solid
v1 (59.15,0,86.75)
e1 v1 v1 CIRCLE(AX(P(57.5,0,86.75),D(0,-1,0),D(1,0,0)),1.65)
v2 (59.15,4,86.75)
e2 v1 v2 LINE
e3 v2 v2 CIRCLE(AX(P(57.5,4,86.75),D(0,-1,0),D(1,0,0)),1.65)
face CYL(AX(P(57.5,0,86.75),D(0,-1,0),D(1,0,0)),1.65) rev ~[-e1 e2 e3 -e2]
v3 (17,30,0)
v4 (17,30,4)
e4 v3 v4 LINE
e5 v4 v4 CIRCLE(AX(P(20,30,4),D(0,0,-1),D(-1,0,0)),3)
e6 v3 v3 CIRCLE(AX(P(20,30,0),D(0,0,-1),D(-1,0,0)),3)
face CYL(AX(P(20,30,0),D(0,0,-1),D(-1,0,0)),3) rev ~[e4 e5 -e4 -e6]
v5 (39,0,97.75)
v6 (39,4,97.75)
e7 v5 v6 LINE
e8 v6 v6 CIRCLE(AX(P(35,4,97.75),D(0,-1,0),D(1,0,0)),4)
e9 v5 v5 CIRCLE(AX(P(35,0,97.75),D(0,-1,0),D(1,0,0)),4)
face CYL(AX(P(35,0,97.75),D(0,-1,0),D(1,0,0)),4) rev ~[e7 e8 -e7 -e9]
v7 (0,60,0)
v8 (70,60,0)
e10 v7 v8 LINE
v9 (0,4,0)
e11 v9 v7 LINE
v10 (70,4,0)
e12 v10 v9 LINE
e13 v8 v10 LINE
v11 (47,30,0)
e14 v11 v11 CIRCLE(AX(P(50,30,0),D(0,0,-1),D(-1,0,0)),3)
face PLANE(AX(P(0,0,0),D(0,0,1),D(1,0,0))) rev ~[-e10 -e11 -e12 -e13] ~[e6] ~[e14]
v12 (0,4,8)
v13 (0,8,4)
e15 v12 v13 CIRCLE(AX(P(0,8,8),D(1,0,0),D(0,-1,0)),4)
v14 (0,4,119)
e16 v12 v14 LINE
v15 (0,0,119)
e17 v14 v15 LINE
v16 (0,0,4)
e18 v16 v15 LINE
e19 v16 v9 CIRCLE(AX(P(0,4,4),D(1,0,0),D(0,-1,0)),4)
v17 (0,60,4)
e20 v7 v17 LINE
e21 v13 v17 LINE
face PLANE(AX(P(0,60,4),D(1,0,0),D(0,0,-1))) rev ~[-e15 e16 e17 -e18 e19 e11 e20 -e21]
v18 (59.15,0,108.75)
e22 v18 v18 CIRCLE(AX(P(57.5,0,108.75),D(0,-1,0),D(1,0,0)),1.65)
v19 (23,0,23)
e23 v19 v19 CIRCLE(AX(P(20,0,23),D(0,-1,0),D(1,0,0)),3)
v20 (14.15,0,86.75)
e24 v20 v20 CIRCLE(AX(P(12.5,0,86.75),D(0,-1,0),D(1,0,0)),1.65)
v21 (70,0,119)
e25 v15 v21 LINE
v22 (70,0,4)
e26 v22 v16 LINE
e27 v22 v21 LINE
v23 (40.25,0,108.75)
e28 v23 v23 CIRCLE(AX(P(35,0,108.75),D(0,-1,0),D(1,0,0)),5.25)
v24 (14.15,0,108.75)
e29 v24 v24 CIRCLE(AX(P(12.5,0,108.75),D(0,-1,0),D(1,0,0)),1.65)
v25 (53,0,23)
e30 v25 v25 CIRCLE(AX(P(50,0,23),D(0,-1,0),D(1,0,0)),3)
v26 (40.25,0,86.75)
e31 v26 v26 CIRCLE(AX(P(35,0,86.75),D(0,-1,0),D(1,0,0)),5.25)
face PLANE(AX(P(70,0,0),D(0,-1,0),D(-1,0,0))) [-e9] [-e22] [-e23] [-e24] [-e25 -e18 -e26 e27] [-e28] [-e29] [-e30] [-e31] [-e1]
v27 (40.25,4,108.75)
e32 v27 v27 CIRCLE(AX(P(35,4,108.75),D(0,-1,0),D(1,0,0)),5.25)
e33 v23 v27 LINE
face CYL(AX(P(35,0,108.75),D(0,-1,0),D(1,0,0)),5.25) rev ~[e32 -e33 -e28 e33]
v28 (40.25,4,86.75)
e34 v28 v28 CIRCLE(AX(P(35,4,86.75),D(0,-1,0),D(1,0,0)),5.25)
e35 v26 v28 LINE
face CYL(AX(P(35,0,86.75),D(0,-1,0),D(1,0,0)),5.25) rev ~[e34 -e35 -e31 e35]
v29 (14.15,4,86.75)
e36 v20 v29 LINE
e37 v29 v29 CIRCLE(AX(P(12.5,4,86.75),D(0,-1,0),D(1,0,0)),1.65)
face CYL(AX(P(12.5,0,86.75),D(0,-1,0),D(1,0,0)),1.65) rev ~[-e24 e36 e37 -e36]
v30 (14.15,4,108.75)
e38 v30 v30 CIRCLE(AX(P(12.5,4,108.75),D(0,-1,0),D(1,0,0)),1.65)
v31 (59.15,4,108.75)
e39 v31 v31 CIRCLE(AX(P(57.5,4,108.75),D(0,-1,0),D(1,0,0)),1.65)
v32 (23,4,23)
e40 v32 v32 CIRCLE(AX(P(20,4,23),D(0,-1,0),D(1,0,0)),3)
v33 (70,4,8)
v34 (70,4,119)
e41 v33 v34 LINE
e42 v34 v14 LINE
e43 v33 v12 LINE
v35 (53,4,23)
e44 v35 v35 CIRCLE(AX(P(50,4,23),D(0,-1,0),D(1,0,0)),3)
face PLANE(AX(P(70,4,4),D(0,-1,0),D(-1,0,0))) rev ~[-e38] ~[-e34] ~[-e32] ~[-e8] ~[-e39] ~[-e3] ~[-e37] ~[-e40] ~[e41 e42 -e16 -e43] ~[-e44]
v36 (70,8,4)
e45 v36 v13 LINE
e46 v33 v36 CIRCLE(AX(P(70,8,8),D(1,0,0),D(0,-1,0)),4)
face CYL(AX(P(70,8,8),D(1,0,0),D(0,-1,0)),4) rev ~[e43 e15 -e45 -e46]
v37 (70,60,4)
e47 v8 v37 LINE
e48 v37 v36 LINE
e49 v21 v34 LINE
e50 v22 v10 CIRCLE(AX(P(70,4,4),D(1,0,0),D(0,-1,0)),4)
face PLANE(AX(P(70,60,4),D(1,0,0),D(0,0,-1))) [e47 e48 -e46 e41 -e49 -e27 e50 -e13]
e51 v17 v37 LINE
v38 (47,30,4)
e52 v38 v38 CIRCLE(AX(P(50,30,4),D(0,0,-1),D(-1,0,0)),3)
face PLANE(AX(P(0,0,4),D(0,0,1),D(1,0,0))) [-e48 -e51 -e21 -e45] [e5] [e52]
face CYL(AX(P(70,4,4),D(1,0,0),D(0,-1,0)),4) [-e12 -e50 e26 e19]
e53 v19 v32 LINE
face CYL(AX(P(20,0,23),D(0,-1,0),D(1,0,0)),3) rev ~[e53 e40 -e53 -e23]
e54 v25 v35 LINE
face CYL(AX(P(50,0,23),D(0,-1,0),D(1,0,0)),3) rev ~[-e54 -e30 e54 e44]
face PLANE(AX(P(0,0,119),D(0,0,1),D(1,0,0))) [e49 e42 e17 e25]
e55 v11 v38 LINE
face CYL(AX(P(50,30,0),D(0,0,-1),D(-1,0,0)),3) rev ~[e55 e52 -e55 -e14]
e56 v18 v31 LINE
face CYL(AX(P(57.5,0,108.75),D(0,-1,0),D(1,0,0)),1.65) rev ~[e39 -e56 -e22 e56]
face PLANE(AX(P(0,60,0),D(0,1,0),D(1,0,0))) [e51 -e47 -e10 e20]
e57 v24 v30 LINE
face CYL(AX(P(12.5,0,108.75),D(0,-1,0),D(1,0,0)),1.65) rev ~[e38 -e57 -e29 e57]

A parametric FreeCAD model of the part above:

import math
import FreeCAD as App
import Part
import Sketcher

V = App.Vector

doc = App.newDocument("Part")
body = doc.addObject("PartDesign::Body", "Body")

sketch1 = body.newObject("Sketcher::SketchObject", "Sketch")
sketch1.AttachmentSupport = (doc.getObject("XY_Plane"), [""])
sketch1.MapMode = "FlatFace"
sketch1.addGeometry(Part.LineSegment(V(0, 60, 0), V(0, 0, 0)), False)
sketch1.addGeometry(Part.LineSegment(V(0, 0, 0), V(70, 0, 0)), False)
sketch1.addGeometry(Part.LineSegment(V(70, 0, 0), V(70, 60, 0)), False)
sketch1.addGeometry(Part.LineSegment(V(70, 60, 0), V(0, 60, 0)), False)
sketch1.addConstraint(Sketcher.Constraint("Coincident", 0, 2, 1, 1))
sketch1.addConstraint(Sketcher.Constraint("Coincident", 1, 2, 2, 1))
sketch1.addConstraint(Sketcher.Constraint("Coincident", 2, 2, 3, 1))
sketch1.addConstraint(Sketcher.Constraint("Coincident", 3, 2, 0, 1))
sketch1.addConstraint(Sketcher.Constraint("Vertical", 0))
sketch1.addConstraint(Sketcher.Constraint("Horizontal", 1))
sketch1.addConstraint(Sketcher.Constraint("Vertical", 2))
sketch1.addConstraint(Sketcher.Constraint("Horizontal", 3))
sketch1.addConstraint(Sketcher.Constraint("Coincident", 0, 2, -1, 1))
sketch1.addConstraint(Sketcher.Constraint("DistanceX", 1, 1, 1, 2, 70.0))
sketch1.addConstraint(Sketcher.Constraint("DistanceY", 0, 2, 0, 1, 60.0))
pad1 = body.newObject("PartDesign::Pad", "Pad")
pad1.Profile = sketch1
pad1.Length = 4

sketch2 = body.newObject("Sketcher::SketchObject", "Sketch001")
sketch2.AttachmentSupport = (doc.getObject("XY_Plane"), [""])
sketch2.MapMode = "FlatFace"
sketch2.AttachmentOffset = App.Placement(V(0, 0, 4), App.Rotation())
sketch2.addGeometry(Part.LineSegment(V(0, 4, 0), V(0, 0, 0)), False)
sketch2.addGeometry(Part.LineSegment(V(0, 0, 0), V(70, 0, 0)), False)
sketch2.addGeometry(Part.LineSegment(V(70, 0, 0), V(70, 4, 0)), False)
sketch2.addGeometry(Part.LineSegment(V(70, 4, 0), V(0, 4, 0)), False)
sketch2.addConstraint(Sketcher.Constraint("Coincident", 0, 2, 1, 1))
sketch2.addConstraint(Sketcher.Constraint("Coincident", 1, 2, 2, 1))
sketch2.addConstraint(Sketcher.Constraint("Coincident", 2, 2, 3, 1))
sketch2.addConstraint(Sketcher.Constraint("Coincident", 3, 2, 0, 1))
sketch2.addConstraint(Sketcher.Constraint("Vertical", 0))
sketch2.addConstraint(Sketcher.Constraint("Horizontal", 1))
sketch2.addConstraint(Sketcher.Constraint("Vertical", 2))
sketch2.addConstraint(Sketcher.Constraint("Horizontal", 3))
sketch2.addConstraint(Sketcher.Constraint("Coincident", 0, 2, -1, 1))
sketch2.addConstraint(Sketcher.Constraint("DistanceY", 0, 2, 0, 1, 4.0))
sketch2.addConstraint(Sketcher.Constraint("DistanceX", 1, 1, 1, 2, 70.0))
pad2 = body.newObject("PartDesign::Pad", "Pad001")
pad2.Profile = sketch2
pad2.Length = 115

sketch3 = body.newObject("Sketcher::SketchObject", "Sketch002")
sketch3.AttachmentSupport = (doc.getObject("XY_Plane"), [""])
sketch3.MapMode = "FlatFace"
sketch3.addGeometry(Part.Circle(V(50, 30, 0), V(0, 0, 1), 3), False)
sketch3.addGeometry(Part.Circle(V(20, 30, 0), V(0, 0, 1), 3), False)
sketch3.addConstraint(Sketcher.Constraint("Equal", 0, 1))
sketch3.addConstraint(Sketcher.Constraint("Horizontal", 0, 3, 1, 3))
sketch3.addConstraint(Sketcher.Constraint("Diameter", 0, 6.0))
sketch3.addConstraint(Sketcher.Constraint("DistanceX", -1, 1, 0, 3, 50.0))
sketch3.addConstraint(Sketcher.Constraint("DistanceY", -1, 1, 0, 3, 30.0))
sketch3.addConstraint(Sketcher.Constraint("DistanceX", -1, 1, 1, 3, 20.0))
pocket1 = body.newObject("PartDesign::Pocket", "Pocket")
pocket1.Profile = sketch3
pocket1.Length = 10
pocket1.Reversed = True

sketch4 = body.newObject("Sketcher::SketchObject", "Sketch003")
sketch4.AttachmentSupport = (doc.getObject("XZ_Plane"), [""])
sketch4.MapMode = "FlatFace"
sketch4.addGeometry(Part.Circle(V(50, 23, 0), V(0, 0, 1), 3), False)
sketch4.addGeometry(Part.Circle(V(20, 23, 0), V(0, 0, 1), 3), False)
sketch4.addConstraint(Sketcher.Constraint("Equal", 0, 1))
sketch4.addConstraint(Sketcher.Constraint("Horizontal", 0, 3, 1, 3))
sketch4.addConstraint(Sketcher.Constraint("Diameter", 0, 6.0))
sketch4.addConstraint(Sketcher.Constraint("DistanceX", -1, 1, 0, 3, 50.0))
sketch4.addConstraint(Sketcher.Constraint("DistanceY", -1, 1, 0, 3, 23.0))
sketch4.addConstraint(Sketcher.Constraint("DistanceX", -1, 1, 1, 3, 20.0))
pocket2 = body.newObject("PartDesign::Pocket", "Pocket001")
pocket2.Profile = sketch4
pocket2.Length = 10

sketch5 = body.newObject("Sketcher::SketchObject", "Sketch004")
sketch5.AttachmentSupport = (doc.getObject("XZ_Plane"), [""])
sketch5.MapMode = "FlatFace"
sketch5.addGeometry(Part.Circle(V(35, 108.75, 0), V(0, 0, 1), 5.25), False)
sketch5.addGeometry(Part.Circle(V(35, 86.75, 0), V(0, 0, 1), 5.25), False)
sketch5.addGeometry(Part.Circle(V(35, 97.75, 0), V(0, 0, 1), 4), False)
sketch5.addGeometry(Part.Circle(V(55.25, 86.75, 0), V(0, 0, 1), 2), False)
sketch5.addGeometry(Part.Circle(V(55.25, 108.75, 0), V(0, 0, 1), 2), False)
sketch5.addGeometry(Part.Circle(V(14.75, 86.75, 0), V(0, 0, 1), 2), False)
sketch5.addGeometry(Part.Circle(V(14.75, 108.75, 0), V(0, 0, 1), 2), False)
sketch5.addConstraint(Sketcher.Constraint("Equal", 0, 1))
sketch5.addConstraint(Sketcher.Constraint("Equal", 3, 4))
sketch5.addConstraint(Sketcher.Constraint("Equal", 4, 5))
sketch5.addConstraint(Sketcher.Constraint("Equal", 5, 6))
sketch5.addConstraint(Sketcher.Constraint("Horizontal", 1, 3, 3, 3))
sketch5.addConstraint(Sketcher.Constraint("Horizontal", 0, 3, 4, 3))
sketch5.addConstraint(Sketcher.Constraint("Horizontal", 3, 3, 5, 3))
sketch5.addConstraint(Sketcher.Constraint("Horizontal", 4, 3, 6, 3))
sketch5.addConstraint(Sketcher.Constraint("Vertical", 0, 3, 1, 3))
sketch5.addConstraint(Sketcher.Constraint("Vertical", 1, 3, 2, 3))
sketch5.addConstraint(Sketcher.Constraint("Vertical", 3, 3, 4, 3))
sketch5.addConstraint(Sketcher.Constraint("Vertical", 5, 3, 6, 3))
sketch5.addConstraint(Sketcher.Constraint("Diameter", 2, 8.0))
sketch5.addConstraint(Sketcher.Constraint("Diameter", 3, 4.0))
sketch5.addConstraint(Sketcher.Constraint("Diameter", 0, 10.5))
sketch5.addConstraint(Sketcher.Constraint("DistanceX", -1, 1, 0, 3, 35.0))
sketch5.addConstraint(Sketcher.Constraint("DistanceY", 1, 3, 0, 3, 22.0))
sketch5.addConstraint(Sketcher.Constraint("DistanceY", 2, 3, 0, 3, 11.0))
sketch5.addConstraint(Sketcher.Constraint("DistanceX", 5, 3, 3, 3, 40.5))
sketch5.addConstraint(Sketcher.Constraint("DistanceY", -1, 1, 0, 3, 108.75))
sketch5.addConstraint(Sketcher.Constraint("DistanceX", -1, 1, 3, 3, 55.25))
pocket3 = body.newObject("PartDesign::Pocket", "Pocket002")
pocket3.Profile = sketch5
pocket3.Length = 10

sketch6 = body.newObject("Sketcher::SketchObject", "Sketch005")
sketch6.AttachmentSupport = (doc.getObject("YZ_Plane"), [""])
sketch6.MapMode = "FlatFace"
sketch6.AttachmentOffset = App.Placement(V(0, 0, 70), App.Rotation())
sketch6.addGeometry(Part.LineSegment(V(0, 4, 0), V(0, 0, 0)), False)
sketch6.addGeometry(Part.LineSegment(V(0, 0, 0), V(4, 0, 0)), False)
sketch6.addGeometry(Part.ArcOfCircle(Part.Circle(V(4, 4, 0), V(0, 0, 1), 4), math.radians(180), math.radians(270)), False)
sketch6.addConstraint(Sketcher.Constraint("Coincident", 0, 2, 1, 1))
sketch6.addConstraint(Sketcher.Constraint("Tangent", 1, 2, 2, 2))
sketch6.addConstraint(Sketcher.Constraint("Tangent", 2, 1, 0, 1))
sketch6.addConstraint(Sketcher.Constraint("Vertical", 0))
sketch6.addConstraint(Sketcher.Constraint("Horizontal", 1))
sketch6.addConstraint(Sketcher.Constraint("Coincident", 0, 2, -1, 1))
sketch6.addConstraint(Sketcher.Constraint("Radius", 2, 4.0))
pocket4 = body.newObject("PartDesign::Pocket", "Pocket003")
pocket4.Profile = sketch6
pocket4.Length = 100

sketch7 = body.newObject("Sketcher::SketchObject", "Sketch006")
sketch7.AttachmentSupport = (doc.getObject("YZ_Plane"), [""])
sketch7.MapMode = "FlatFace"
sketch7.AttachmentOffset = App.Placement(V(0, 0, 70), App.Rotation())
sketch7.addGeometry(Part.LineSegment(V(4, 8, 0), V(4, 4, 0)), False)
sketch7.addGeometry(Part.LineSegment(V(4, 4, 0), V(8, 4, 0)), False)
sketch7.addGeometry(Part.ArcOfCircle(Part.Circle(V(8, 8, 0), V(0, 0, 1), 4), math.radians(180), math.radians(270)), False)
sketch7.addConstraint(Sketcher.Constraint("Coincident", 0, 2, 1, 1))
sketch7.addConstraint(Sketcher.Constraint("Tangent", 1, 2, 2, 2))
sketch7.addConstraint(Sketcher.Constraint("Tangent", 2, 1, 0, 1))
sketch7.addConstraint(Sketcher.Constraint("Vertical", 0))
sketch7.addConstraint(Sketcher.Constraint("Horizontal", 1))
sketch7.addConstraint(Sketcher.Constraint("Radius", 2, 4.0))
sketch7.addConstraint(Sketcher.Constraint("DistanceX", -1, 1, 0, 2, 4.0))
sketch7.addConstraint(Sketcher.Constraint("DistanceY", -1, 1, 0, 2, 4.0))
pad3 = body.newObject("PartDesign::Pad", "Pad002")
pad3.Profile = sketch7
pad3.Length = 70
pad3.Reversed = True

sketch8 = body.newObject("Sketcher::SketchObject", "Sketch007")
sketch8.AttachmentSupport = (doc.getObject("XZ_Plane"), [""])
sketch8.MapMode = "FlatFace"
sketch8.addGeometry(Part.Circle(V(55.25, 86.75, 0), V(0, 0, 1), 2), False)
sketch8.addGeometry(Part.Circle(V(55.25, 108.75, 0), V(0, 0, 1), 2), False)
sketch8.addGeometry(Part.Circle(V(14.75, 108.75, 0), V(0, 0, 1), 2), False)
sketch8.addGeometry(Part.Circle(V(14.75, 86.75, 0), V(0, 0, 1), 2), False)
sketch8.addConstraint(Sketcher.Constraint("Equal", 0, 1))
sketch8.addConstraint(Sketcher.Constraint("Equal", 1, 2))
sketch8.addConstraint(Sketcher.Constraint("Equal", 2, 3))
sketch8.addConstraint(Sketcher.Constraint("Horizontal", 1, 3, 2, 3))
sketch8.addConstraint(Sketcher.Constraint("Horizontal", 0, 3, 3, 3))
sketch8.addConstraint(Sketcher.Constraint("Vertical", 0, 3, 1, 3))
sketch8.addConstraint(Sketcher.Constraint("Vertical", 2, 3, 3, 3))
sketch8.addConstraint(Sketcher.Constraint("Diameter", 0, 4.0))
sketch8.addConstraint(Sketcher.Constraint("DistanceY", 0, 3, 1, 3, 22.0))
sketch8.addConstraint(Sketcher.Constraint("DistanceX", 2, 3, 1, 3, 40.5))
sketch8.addConstraint(Sketcher.Constraint("DistanceX", -1, 1, 0, 3, 55.25))
sketch8.addConstraint(Sketcher.Constraint("DistanceY", -1, 1, 0, 3, 86.75))
pad4 = body.newObject("PartDesign::Pad", "Pad003")
pad4.Profile = sketch8
pad4.Length = 4
pad4.Reversed = True

sketch9 = body.newObject("Sketcher::SketchObject", "Sketch008")
sketch9.AttachmentSupport = (doc.getObject("XZ_Plane"), [""])
sketch9.MapMode = "FlatFace"
sketch9.addGeometry(Part.Circle(V(57.5, 108.75, 0), V(0, 0, 1), 1.65), False)
sketch9.addGeometry(Part.Circle(V(12.5, 108.75, 0), V(0, 0, 1), 1.65), False)
sketch9.addGeometry(Part.Circle(V(57.5, 86.75, 0), V(0, 0, 1), 1.65), False)
sketch9.addGeometry(Part.Circle(V(12.5, 86.75, 0), V(0, 0, 1), 1.65), False)
sketch9.addConstraint(Sketcher.Constraint("Equal", 0, 1))
sketch9.addConstraint(Sketcher.Constraint("Equal", 1, 2))
sketch9.addConstraint(Sketcher.Constraint("Equal", 2, 3))
sketch9.addConstraint(Sketcher.Constraint("Horizontal", 0, 3, 1, 3))
sketch9.addConstraint(Sketcher.Constraint("Horizontal", 2, 3, 3, 3))
sketch9.addConstraint(Sketcher.Constraint("Vertical", 0, 3, 2, 3))
sketch9.addConstraint(Sketcher.Constraint("Vertical", 1, 3, 3, 3))
sketch9.addConstraint(Sketcher.Constraint("Diameter", 0, 3.3))
sketch9.addConstraint(Sketcher.Constraint("DistanceX", 1, 3, 0, 3, 45.0))
sketch9.addConstraint(Sketcher.Constraint("DistanceY", 2, 3, 0, 3, 22.0))
sketch9.addConstraint(Sketcher.Constraint("DistanceX", -1, 1, 0, 3, 57.5))
sketch9.addConstraint(Sketcher.Constraint("DistanceY", -1, 1, 0, 3, 108.75))
pocket5 = body.newObject("PartDesign::Pocket", "Pocket004")
pocket5.Profile = sketch9
pocket5.Length = 4

doc.recompute()
